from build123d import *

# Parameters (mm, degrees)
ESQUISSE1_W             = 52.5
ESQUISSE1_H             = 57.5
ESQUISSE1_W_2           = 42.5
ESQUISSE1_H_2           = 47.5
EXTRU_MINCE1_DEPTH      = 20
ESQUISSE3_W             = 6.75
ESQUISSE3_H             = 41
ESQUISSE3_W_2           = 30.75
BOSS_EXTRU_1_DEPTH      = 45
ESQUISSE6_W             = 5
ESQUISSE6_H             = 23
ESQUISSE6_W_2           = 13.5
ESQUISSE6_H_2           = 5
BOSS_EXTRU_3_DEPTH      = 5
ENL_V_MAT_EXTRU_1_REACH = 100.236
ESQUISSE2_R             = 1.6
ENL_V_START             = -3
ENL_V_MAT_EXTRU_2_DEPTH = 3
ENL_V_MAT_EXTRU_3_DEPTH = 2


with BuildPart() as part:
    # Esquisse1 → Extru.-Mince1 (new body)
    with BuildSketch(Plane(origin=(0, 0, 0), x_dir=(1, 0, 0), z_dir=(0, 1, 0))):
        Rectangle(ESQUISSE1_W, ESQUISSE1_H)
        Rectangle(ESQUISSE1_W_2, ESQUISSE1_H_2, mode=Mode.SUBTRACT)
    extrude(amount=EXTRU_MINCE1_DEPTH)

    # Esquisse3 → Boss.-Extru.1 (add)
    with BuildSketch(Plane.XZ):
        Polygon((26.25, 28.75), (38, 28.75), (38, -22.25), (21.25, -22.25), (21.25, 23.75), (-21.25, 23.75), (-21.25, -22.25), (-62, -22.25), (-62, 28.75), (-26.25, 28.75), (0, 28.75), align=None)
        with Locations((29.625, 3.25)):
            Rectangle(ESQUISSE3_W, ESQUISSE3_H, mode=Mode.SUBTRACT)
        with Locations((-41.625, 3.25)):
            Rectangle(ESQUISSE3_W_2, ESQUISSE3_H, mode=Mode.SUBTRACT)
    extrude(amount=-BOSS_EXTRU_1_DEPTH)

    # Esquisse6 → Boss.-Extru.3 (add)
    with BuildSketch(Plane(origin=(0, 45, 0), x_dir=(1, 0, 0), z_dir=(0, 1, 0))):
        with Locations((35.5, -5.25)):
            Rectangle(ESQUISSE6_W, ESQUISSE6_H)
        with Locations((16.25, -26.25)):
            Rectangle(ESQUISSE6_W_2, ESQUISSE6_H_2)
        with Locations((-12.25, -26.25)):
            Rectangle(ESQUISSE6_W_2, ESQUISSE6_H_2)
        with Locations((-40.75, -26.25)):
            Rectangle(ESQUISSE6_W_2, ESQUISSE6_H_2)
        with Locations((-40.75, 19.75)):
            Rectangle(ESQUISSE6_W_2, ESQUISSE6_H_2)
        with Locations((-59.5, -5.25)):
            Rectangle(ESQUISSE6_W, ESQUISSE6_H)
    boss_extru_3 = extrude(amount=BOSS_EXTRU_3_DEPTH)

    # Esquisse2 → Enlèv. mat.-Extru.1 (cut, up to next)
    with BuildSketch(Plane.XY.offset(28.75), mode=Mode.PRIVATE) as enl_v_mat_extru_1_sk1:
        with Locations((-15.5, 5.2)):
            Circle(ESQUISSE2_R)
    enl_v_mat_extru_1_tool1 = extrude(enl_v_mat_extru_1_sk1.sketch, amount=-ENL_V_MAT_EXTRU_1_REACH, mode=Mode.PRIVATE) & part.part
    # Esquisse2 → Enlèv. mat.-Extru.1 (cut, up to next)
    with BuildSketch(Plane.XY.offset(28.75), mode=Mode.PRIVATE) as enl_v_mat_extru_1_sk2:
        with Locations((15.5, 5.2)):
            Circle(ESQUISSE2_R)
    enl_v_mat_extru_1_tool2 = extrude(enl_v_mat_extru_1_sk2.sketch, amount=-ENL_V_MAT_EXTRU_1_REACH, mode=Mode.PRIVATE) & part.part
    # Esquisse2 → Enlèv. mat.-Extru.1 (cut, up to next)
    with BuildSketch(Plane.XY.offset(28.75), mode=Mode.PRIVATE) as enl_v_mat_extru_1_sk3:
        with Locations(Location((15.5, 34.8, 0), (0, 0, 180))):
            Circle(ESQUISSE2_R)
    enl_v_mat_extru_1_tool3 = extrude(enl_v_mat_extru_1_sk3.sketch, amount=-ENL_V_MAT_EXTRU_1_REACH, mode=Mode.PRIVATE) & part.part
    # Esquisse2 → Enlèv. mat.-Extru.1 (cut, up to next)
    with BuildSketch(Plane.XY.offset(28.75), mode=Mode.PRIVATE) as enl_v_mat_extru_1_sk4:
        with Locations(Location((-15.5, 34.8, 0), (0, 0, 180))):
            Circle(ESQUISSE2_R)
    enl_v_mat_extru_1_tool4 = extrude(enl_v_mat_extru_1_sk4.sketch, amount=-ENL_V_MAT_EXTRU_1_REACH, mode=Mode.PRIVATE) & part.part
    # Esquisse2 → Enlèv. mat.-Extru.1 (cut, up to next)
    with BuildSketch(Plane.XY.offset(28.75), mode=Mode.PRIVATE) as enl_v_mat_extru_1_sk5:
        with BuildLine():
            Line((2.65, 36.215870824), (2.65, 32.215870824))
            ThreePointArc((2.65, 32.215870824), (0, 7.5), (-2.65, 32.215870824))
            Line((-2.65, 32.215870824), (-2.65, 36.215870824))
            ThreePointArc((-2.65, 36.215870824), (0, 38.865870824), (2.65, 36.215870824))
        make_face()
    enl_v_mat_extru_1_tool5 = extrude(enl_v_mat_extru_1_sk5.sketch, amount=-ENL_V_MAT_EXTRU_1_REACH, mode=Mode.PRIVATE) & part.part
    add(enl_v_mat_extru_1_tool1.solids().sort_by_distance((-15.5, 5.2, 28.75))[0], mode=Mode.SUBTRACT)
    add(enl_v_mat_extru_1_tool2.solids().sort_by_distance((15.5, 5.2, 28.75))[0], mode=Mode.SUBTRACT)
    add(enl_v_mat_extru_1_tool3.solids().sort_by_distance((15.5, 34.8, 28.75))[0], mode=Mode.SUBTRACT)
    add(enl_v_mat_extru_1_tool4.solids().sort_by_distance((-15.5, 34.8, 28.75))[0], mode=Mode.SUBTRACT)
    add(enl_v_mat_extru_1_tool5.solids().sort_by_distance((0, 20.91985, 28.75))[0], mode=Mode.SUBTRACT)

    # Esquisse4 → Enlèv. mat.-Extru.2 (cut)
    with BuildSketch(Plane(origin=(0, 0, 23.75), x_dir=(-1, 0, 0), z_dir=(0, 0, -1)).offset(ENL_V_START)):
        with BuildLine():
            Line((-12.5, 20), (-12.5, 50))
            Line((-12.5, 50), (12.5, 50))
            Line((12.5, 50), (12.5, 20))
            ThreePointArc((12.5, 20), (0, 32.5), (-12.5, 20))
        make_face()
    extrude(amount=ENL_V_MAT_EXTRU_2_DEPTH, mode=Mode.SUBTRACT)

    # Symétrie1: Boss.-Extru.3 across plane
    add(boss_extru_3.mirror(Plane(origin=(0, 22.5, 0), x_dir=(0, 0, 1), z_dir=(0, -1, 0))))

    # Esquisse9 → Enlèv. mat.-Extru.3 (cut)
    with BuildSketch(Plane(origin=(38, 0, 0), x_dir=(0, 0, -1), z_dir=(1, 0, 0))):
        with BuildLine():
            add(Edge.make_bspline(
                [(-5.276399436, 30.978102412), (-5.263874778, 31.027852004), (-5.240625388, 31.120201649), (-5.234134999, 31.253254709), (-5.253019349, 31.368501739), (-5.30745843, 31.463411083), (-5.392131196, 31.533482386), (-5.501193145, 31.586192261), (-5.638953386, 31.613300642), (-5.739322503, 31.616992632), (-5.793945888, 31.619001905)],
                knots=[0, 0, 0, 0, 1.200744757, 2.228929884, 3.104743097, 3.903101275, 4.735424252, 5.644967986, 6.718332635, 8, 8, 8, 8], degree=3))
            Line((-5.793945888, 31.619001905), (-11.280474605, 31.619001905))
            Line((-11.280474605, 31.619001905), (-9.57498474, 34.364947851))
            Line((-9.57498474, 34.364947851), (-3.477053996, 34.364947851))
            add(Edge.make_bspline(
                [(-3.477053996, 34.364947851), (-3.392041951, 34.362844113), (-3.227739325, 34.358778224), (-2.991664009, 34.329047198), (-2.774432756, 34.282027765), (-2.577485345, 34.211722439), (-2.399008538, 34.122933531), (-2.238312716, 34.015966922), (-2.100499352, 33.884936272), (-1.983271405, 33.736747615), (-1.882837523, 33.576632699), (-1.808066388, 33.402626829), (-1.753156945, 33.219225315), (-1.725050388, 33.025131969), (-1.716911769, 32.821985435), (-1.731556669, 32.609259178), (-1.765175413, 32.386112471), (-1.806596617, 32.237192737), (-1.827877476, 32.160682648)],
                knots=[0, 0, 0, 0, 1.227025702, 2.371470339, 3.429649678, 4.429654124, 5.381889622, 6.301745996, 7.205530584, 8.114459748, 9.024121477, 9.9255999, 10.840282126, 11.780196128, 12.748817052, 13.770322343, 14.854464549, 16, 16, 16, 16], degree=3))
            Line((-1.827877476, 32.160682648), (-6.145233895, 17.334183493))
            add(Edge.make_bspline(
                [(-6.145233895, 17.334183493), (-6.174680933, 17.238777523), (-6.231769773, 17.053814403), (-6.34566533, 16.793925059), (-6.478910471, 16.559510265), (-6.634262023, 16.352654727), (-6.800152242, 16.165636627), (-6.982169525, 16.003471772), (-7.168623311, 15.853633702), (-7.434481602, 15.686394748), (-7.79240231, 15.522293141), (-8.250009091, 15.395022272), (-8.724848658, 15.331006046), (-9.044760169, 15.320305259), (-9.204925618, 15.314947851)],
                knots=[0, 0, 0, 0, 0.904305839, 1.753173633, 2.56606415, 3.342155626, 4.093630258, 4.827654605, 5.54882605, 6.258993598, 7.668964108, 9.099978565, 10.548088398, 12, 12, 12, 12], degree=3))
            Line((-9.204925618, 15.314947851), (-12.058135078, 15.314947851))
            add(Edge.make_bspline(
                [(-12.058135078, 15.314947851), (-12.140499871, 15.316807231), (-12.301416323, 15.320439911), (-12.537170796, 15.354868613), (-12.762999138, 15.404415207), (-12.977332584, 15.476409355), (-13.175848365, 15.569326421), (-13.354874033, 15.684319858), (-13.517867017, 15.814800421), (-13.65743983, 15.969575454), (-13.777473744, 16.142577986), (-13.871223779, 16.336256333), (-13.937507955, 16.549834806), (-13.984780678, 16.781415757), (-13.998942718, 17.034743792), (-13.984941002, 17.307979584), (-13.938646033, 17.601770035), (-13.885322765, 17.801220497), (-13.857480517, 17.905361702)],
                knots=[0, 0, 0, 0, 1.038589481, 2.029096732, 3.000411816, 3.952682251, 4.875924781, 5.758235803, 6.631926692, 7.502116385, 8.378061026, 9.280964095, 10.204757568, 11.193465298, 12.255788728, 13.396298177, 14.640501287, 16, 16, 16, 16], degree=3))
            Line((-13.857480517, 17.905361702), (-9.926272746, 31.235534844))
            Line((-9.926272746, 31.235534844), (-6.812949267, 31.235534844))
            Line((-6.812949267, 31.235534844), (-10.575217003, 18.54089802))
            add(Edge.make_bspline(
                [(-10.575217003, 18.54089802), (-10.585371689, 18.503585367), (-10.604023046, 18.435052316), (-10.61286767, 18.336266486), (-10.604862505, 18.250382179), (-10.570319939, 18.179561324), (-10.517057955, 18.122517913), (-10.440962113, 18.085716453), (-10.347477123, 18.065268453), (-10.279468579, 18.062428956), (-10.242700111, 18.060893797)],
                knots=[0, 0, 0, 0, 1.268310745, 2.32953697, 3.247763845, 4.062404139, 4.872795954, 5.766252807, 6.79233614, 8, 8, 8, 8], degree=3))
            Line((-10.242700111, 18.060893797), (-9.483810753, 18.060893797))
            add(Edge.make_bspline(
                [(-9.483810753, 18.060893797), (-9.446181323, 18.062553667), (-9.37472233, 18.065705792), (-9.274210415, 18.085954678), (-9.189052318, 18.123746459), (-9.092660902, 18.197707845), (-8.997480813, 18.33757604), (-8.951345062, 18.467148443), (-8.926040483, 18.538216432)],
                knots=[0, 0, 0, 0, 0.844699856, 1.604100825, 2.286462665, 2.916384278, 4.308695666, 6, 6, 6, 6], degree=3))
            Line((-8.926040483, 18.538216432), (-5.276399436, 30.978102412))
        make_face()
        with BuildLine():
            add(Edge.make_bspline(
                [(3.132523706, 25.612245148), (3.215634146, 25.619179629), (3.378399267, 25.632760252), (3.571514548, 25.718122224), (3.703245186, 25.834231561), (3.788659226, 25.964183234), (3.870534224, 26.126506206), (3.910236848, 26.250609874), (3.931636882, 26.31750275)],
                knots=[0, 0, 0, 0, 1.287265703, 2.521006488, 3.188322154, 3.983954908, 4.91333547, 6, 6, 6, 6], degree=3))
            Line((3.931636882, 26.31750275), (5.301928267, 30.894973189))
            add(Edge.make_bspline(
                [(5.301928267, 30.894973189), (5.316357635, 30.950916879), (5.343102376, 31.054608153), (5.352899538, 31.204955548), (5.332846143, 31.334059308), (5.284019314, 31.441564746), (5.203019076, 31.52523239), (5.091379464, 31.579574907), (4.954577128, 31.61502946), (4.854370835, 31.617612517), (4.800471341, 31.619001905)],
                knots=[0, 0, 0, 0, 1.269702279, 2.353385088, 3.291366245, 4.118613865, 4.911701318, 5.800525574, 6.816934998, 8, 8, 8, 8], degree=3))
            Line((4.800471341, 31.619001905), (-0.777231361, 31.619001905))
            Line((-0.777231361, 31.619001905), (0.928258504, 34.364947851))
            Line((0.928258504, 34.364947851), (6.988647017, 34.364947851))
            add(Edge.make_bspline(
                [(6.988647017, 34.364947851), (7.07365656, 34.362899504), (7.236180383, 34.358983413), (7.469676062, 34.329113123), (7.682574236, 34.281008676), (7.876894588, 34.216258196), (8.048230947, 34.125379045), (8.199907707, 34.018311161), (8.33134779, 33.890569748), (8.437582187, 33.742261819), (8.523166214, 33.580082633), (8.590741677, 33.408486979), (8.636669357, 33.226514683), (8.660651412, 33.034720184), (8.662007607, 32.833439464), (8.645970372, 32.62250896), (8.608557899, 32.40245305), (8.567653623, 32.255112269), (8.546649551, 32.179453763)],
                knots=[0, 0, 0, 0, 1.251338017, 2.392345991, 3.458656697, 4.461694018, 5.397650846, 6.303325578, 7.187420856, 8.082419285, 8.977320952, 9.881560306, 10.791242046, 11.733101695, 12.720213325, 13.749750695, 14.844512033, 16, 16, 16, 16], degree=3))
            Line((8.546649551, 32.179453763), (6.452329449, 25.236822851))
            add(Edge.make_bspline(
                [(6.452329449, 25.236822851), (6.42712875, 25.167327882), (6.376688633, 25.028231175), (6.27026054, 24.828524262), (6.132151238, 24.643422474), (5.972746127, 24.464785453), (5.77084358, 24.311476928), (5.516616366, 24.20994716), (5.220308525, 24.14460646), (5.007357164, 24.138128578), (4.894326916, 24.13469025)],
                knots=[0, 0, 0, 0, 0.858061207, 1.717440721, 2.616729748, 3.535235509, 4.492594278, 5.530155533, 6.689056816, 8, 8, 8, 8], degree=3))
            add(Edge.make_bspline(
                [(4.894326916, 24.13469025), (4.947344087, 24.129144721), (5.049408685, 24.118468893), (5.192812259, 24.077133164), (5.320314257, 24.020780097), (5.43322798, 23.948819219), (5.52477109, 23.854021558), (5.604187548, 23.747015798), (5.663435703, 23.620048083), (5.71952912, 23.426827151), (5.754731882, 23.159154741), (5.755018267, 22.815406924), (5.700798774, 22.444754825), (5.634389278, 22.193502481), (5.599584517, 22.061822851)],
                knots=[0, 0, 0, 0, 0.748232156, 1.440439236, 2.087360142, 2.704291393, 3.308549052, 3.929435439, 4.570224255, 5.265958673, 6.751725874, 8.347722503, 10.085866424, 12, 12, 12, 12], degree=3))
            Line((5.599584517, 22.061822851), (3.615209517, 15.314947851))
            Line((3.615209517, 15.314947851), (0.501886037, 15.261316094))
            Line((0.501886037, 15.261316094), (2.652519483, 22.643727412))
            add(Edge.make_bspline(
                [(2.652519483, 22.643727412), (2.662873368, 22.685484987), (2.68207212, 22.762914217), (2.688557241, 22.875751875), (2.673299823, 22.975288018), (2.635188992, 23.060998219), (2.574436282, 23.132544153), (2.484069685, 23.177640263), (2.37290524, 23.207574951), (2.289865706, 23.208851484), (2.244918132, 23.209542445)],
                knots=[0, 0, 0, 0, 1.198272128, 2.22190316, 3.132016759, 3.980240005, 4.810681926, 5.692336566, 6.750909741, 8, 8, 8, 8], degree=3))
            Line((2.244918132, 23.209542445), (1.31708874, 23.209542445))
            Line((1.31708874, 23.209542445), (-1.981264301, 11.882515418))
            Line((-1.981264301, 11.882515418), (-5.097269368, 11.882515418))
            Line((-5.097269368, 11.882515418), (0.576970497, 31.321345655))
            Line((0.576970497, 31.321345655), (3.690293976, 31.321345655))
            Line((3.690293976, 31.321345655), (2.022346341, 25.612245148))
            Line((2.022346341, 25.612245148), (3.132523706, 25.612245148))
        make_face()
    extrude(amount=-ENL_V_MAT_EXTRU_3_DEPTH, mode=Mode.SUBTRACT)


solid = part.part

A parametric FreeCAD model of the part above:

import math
import FreeCAD as App
import Part
import Sketcher
from FreeCAD import Vector
Q = App.Units.Quantity

doc = App.newDocument("Part")
params = doc.addObject("Spreadsheet::Sheet", "Params")
for row, (alias, value) in enumerate([
    ("sketch1_width", "52.5 mm"),
    ("sketch1_width2", "42.5 mm"),
    ("sketch1_height", "57.5 mm"),
    ("sketch1_height2", "47.5 mm"),
    ("pad1_length", "20 mm"),
    ("sketch2_width", "100 mm"),
    ("sketch2_height", "51 mm"),
    ("sketch2_height2", "46 mm"),
    ("sketch2_height3", "41 mm"),
    ("sketch2_width2", "42.5 mm"),
    ("pad2_length", "45 mm"),
    ("sketch3_width", "5 mm"),
    ("sketch3_height", "23 mm"),
    ("sketch3_width2", "13.5 mm"),
    ("pad3_length", "5 mm"),
    ("sketch4_diameter", "3.2 mm"),
    ("sketch5_diameter", "3.2 mm"),
    ("sketch6_diameter", "3.2 mm"),
    ("sketch7_diameter", "3.2 mm"),
    ("sketch8_radius", "12.5 mm"),
    ("sketch8_height", "4 mm"),
    ("sketch8_radius2", "2.65 mm"),
    ("sketch9_radius", "12.5 mm"),
    ("sketch9_height", "30 mm"),
    ("pocket6_length", "3 mm"),
    ("pocket7_length", "2 mm"),
], start=1):
    params.set(f"A{row}", alias)
    params.set(f"B{row}", "=" + value)
    params.setAlias(f"B{row}", alias)

body = doc.addObject("PartDesign::Body", "Body")

sketch1 = doc.addObject("Sketcher::SketchObject", "Sketch")
body.addObject(sketch1)
sketch1.AttachmentSupport = (doc.XZ_Plane, [""])
sketch1.MapMode = "FlatFace"
sketch1.addGeometry([
    Part.LineSegment(Vector(-26, -29, 0), Vector(-26, 29, 0)),
    Part.LineSegment(Vector(-26, 29, 0), Vector(26, 29, 0)),
    Part.LineSegment(Vector(26, 29, 0), Vector(26, -29, 0)),
    Part.LineSegment(Vector(26, -29, 0), Vector(-26, -29, 0)),
    Part.LineSegment(Vector(21, 24, 0), Vector(-21, 24, 0)),
    Part.LineSegment(Vector(-21, 24, 0), Vector(-21, -24, 0)),
    Part.LineSegment(Vector(-21, -24, 0), Vector(21, -24, 0)),
    Part.LineSegment(Vector(21, -24, 0), Vector(21, 24, 0)),
], False)
sketch1.addConstraint([
    Sketcher.Constraint("Coincident", 0, 2, 1, 1),
    Sketcher.Constraint("Coincident", 1, 2, 2, 1),
    Sketcher.Constraint("Coincident", 2, 2, 3, 1),
    Sketcher.Constraint("Coincident", 3, 2, 0, 1),
    Sketcher.Constraint("Coincident", 4, 2, 5, 1),
    Sketcher.Constraint("Coincident", 5, 2, 6, 1),
    Sketcher.Constraint("Coincident", 6, 2, 7, 1),
    Sketcher.Constraint("Coincident", 7, 2, 4, 1),
    Sketcher.Constraint("Vertical", 0),
    Sketcher.Constraint("Horizontal", 1),
    Sketcher.Constraint("Vertical", 2),
    Sketcher.Constraint("Horizontal", 3),
    Sketcher.Constraint("Horizontal", 4),
    Sketcher.Constraint("Vertical", 5),
    Sketcher.Constraint("Horizontal", 6),
    Sketcher.Constraint("Vertical", 7),
    Sketcher.Constraint("Symmetric", 0, 2, 2, 2, -1, 1),
    Sketcher.Constraint("Symmetric", 4, 2, 6, 2, -1, 1),
    Sketcher.Constraint("DistanceX", 1, 1, 1, 2, Q("52.5 mm")),
    Sketcher.Constraint("DistanceX", 4, 2, 4, 1, Q("42.5 mm")),
    Sketcher.Constraint("DistanceY", 0, 1, 0, 2, Q("57.5 mm")),
    Sketcher.Constraint("DistanceY", 5, 2, 5, 1, Q("47.5 mm")),
])
sketch1.setExpression("Constraints[18]", "Params.sketch1_width")
sketch1.setExpression("Constraints[19]", "Params.sketch1_width2")
sketch1.setExpression("Constraints[20]", "Params.sketch1_height")
sketch1.setExpression("Constraints[21]", "Params.sketch1_height2")
pad1 = doc.addObject("PartDesign::Pad", "Pad")
body.addObject(pad1)
pad1.Profile = sketch1
pad1.setExpression("Length", "Params.pad1_length")
pad1.Reversed = True

sketch2 = doc.addObject("Sketcher::SketchObject", "Sketch001")
body.addObject(sketch2)
sketch2.AttachmentSupport = (doc.XZ_Plane, [""])
sketch2.MapMode = "FlatFace"
sketch2.addGeometry([
    Part.LineSegment(Vector(38, 29, 0), Vector(-62, 29, 0)),
    Part.LineSegment(Vector(-62, 29, 0), Vector(-62, -22, 0)),
    Part.LineSegment(Vector(-62, -22, 0), Vector(-21, -22, 0)),
    Part.LineSegment(Vector(-21, -22, 0), Vector(-21, 24, 0)),
    Part.LineSegment(Vector(-21, 24, 0), Vector(21, 24, 0)),
    Part.LineSegment(Vector(21, 24, 0), Vector(21, -22, 0)),
    Part.LineSegment(Vector(21, -22, 0), Vector(38, -22, 0)),
    Part.LineSegment(Vector(38, -22, 0), Vector(38, 29, 0)),
    Part.LineSegment(Vector(26, -17, 0), Vector(26, 24, 0)),
    Part.LineSegment(Vector(26, 24, 0), Vector(33, 24, 0)),
    Part.LineSegment(Vector(33, 24, 0), Vector(33, -17, 0)),
    Part.LineSegment(Vector(33, -17, 0), Vector(26, -17, 0)),
    Part.LineSegment(Vector(-57, -17, 0), Vector(-57, 24, 0)),
    Part.LineSegment(Vector(-57, 24, 0), Vector(-26, 24, 0)),
    Part.LineSegment(Vector(-26, 24, 0), Vector(-26, -17, 0)),
    Part.LineSegment(Vector(-26, -17, 0), Vector(-57, -17, 0)),
], False)
sketch2.addConstraint([
    Sketcher.Constraint("Coincident", 0, 2, 1, 1),
    Sketcher.Constraint("Coincident", 1, 2, 2, 1),
    Sketcher.Constraint("Coincident", 2, 2, 3, 1),
    Sketcher.Constraint("Coincident", 3, 2, 4, 1),
    Sketcher.Constraint("Coincident", 4, 2, 5, 1),
    Sketcher.Constraint("Coincident", 5, 2, 6, 1),
    Sketcher.Constraint("Coincident", 6, 2, 7, 1),
    Sketcher.Constraint("Coincident", 7, 2, 0, 1),
    Sketcher.Constraint("Coincident", 8, 2, 9, 1),
    Sketcher.Constraint("Coincident", 9, 2, 10, 1),
    Sketcher.Constraint("Coincident", 10, 2, 11, 1),
    Sketcher.Constraint("Coincident", 11, 2, 8, 1),
    Sketcher.Constraint("Coincident", 12, 2, 13, 1),
    Sketcher.Constraint("Coincident", 13, 2, 14, 1),
    Sketcher.Constraint("Coincident", 14, 2, 15, 1),
    Sketcher.Constraint("Coincident", 15, 2, 12, 1),
    Sketcher.Constraint("Horizontal", 0),
    Sketcher.Constraint("Vertical", 1),
    Sketcher.Constraint("Horizontal", 2),
    Sketcher.Constraint("Vertical", 3),
    Sketcher.Constraint("Horizontal", 4),
    Sketcher.Constraint("Vertical", 5),
    Sketcher.Constraint("Horizontal", 6),
    Sketcher.Constraint("Vertical", 7),
    Sketcher.Constraint("Vertical", 8),
    Sketcher.Constraint("Horizontal", 9),
    Sketcher.Constraint("Vertical", 10),
    Sketcher.Constraint("Horizontal", 11),
    Sketcher.Constraint("Vertical", 12),
    Sketcher.Constraint("Horizontal", 13),
    Sketcher.Constraint("Vertical", 14),
    Sketcher.Constraint("Horizontal", 15),
    Sketcher.Constraint("Symmetric", 2, 2, 5, 2, -2),
    Sketcher.Constraint("Symmetric", 8, 2, 13, 2, -2),
    Sketcher.Constraint("Horizontal", 4, 2, 8, 2),
    Sketcher.Constraint("Horizontal", 11, 2, 14, 2),
    Sketcher.Constraint("DistanceX", 0, 2, 0, 1, Q("100 mm")),
    Sketcher.Constraint("DistanceY", 1, 2, 1, 1, Q("51 mm")),
    Sketcher.Constraint("DistanceY", 3, 1, 3, 2, Q("46 mm")),
    Sketcher.Constraint("DistanceY", 8, 1, 8, 2, Q("41 mm")),
    Sketcher.Constraint("DistanceX", 4, 1, 4, 2, Q("42.5 mm")),
    Sketcher.Constraint("DistanceX", 0, 2, -1, 1, Q("62 mm")),
    Sketcher.Constraint("DistanceX", -1, 1, 9, 2, Q("33 mm")),
    Sketcher.Constraint("DistanceX", 12, 2, -1, 1, Q("57 mm")),
    Sketcher.Constraint("DistanceX", 4, 2, 8, 2, Q("5 mm")),
    Sketcher.Constraint("DistanceY", -1, 1, 0, 2, Q("28.75 mm")),
])
sketch2.setExpression("Constraints[36]", "Params.sketch2_width")
sketch2.setExpression("Constraints[37]", "Params.sketch2_height")
sketch2.setExpression("Constraints[38]", "Params.sketch2_height2")
sketch2.setExpression("Constraints[39]", "Params.sketch2_height3")
sketch2.setExpression("Constraints[40]", "Params.sketch2_width2")
pad2 = doc.addObject("PartDesign::Pad", "Pad001")
body.addObject(pad2)
pad2.Profile = sketch2
pad2.setExpression("Length", "Params.pad2_length")
pad2.Reversed = True

sketch3 = doc.addObject("Sketcher::SketchObject", "Sketch002")
body.addObject(sketch3)
sketch3.AttachmentSupport = (doc.XZ_Plane, [""])
sketch3.MapMode = "FlatFace"
sketch3.AttachmentOffset = App.Placement(Vector(0, 0, -45), App.Rotation())
sketch3.addGeometry([
    Part.LineSegment(Vector(33, -6, 0), Vector(33, 17, 0)),
    Part.LineSegment(Vector(33, 17, 0), Vector(38, 17, 0)),
    Part.LineSegment(Vector(38, 17, 0), Vector(38, -6, 0)),
    Part.LineSegment(Vector(38, -6, 0), Vector(33, -6, 0)),
    Part.LineSegment(Vector(10, 24, 0), Vector(10, 29, 0)),
    Part.LineSegment(Vector(10, 29, 0), Vector(23, 29, 0)),
    Part.LineSegment(Vector(23, 29, 0), Vector(23, 24, 0)),
    Part.LineSegment(Vector(23, 24, 0), Vector(10, 24, 0)),
    Part.LineSegment(Vector(-19, 24, 0), Vector(-19, 29, 0)),
    Part.LineSegment(Vector(-19, 29, 0), Vector(-6, 29, 0)),
    Part.LineSegment(Vector(-6, 29, 0), Vector(-6, 24, 0)),
    Part.LineSegment(Vector(-6, 24, 0), Vector(-19, 24, 0)),
    Part.LineSegment(Vector(-48, 24, 0), Vector(-48, 29, 0)),
    Part.LineSegment(Vector(-48, 29, 0), Vector(-34, 29, 0)),
    Part.LineSegment(Vector(-34, 29, 0), Vector(-34, 24, 0)),
    Part.LineSegment(Vector(-34, 24, 0), Vector(-48, 24, 0)),
    Part.LineSegment(Vector(-48, -22, 0), Vector(-48, -17, 0)),
    Part.LineSegment(Vector(-48, -17, 0), Vector(-34, -17, 0)),
    Part.LineSegment(Vector(-34, -17, 0), Vector(-34, -22, 0)),
    Part.LineSegment(Vector(-34, -22, 0), Vector(-48, -22, 0)),
    Part.LineSegment(Vector(-62, -6, 0), Vector(-62, 17, 0)),
    Part.LineSegment(Vector(-62, 17, 0), Vector(-57, 17, 0)),
    Part.LineSegment(Vector(-57, 17, 0), Vector(-57, -6, 0)),
    Part.LineSegment(Vector(-57, -6, 0), Vector(-62, -6, 0)),
], False)
sketch3.addConstraint([
    Sketcher.Constraint("Coincident", 0, 2, 1, 1),
    Sketcher.Constraint("Coincident", 1, 2, 2, 1),
    Sketcher.Constraint("Coincident", 2, 2, 3, 1),
    Sketcher.Constraint("Coincident", 3, 2, 0, 1),
    Sketcher.Constraint("Coincident", 4, 2, 5, 1),
    Sketcher.Constraint("Coincident", 5, 2, 6, 1),
    Sketcher.Constraint("Coincident", 6, 2, 7, 1),
    Sketcher.Constraint("Coincident", 7, 2, 4, 1),
    Sketcher.Constraint("Coincident", 8, 2, 9, 1),
    Sketcher.Constraint("Coincident", 9, 2, 10, 1),
    Sketcher.Constraint("Coincident", 10, 2, 11, 1),
    Sketcher.Constraint("Coincident", 11, 2, 8, 1),
    Sketcher.Constraint("Coincident", 12, 2, 13, 1),
    Sketcher.Constraint("Coincident", 13, 2, 14, 1),
    Sketcher.Constraint("Coincident", 14, 2, 15, 1),
    Sketcher.Constraint("Coincident", 15, 2, 12, 1),
    Sketcher.Constraint("Coincident", 16, 2, 17, 1),
    Sketcher.Constraint("Coincident", 17, 2, 18, 1),
    Sketcher.Constraint("Coincident", 18, 2, 19, 1),
    Sketcher.Constraint("Coincident", 19, 2, 16, 1),
    Sketcher.Constraint("Coincident", 20, 2, 21, 1),
    Sketcher.Constraint("Coincident", 21, 2, 22, 1),
    Sketcher.Constraint("Coincident", 22, 2, 23, 1),
    Sketcher.Constraint("Coincident", 23, 2, 20, 1),
    Sketcher.Constraint("Vertical", 0),
    Sketcher.Constraint("Horizontal", 1),
    Sketcher.Constraint("Vertical", 2),
    Sketcher.Constraint("Horizontal", 3),
    Sketcher.Constraint("Vertical", 4),
    Sketcher.Constraint("Horizontal", 5),
    Sketcher.Constraint("Vertical", 6),
    Sketcher.Constraint("Horizontal", 7),
    Sketcher.Constraint("Vertical", 8),
    Sketcher.Constraint("Horizontal", 9),
    Sketcher.Constraint("Vertical", 10),
    Sketcher.Constraint("Horizontal", 11),
    Sketcher.Constraint("Vertical", 12),
    Sketcher.Constraint("Horizontal", 13),
    Sketcher.Constraint("Vertical", 14),
    Sketcher.Constraint("Horizontal", 15),
    Sketcher.Constraint("Vertical", 16),
    Sketcher.Constraint("Horizontal", 17),
    Sketcher.Constraint("Vertical", 18),
    Sketcher.Constraint("Horizontal", 19),
    Sketcher.Constraint("Vertical", 20),
    Sketcher.Constraint("Horizontal", 21),
    Sketcher.Constraint("Vertical", 22),
    Sketcher.Constraint("Horizontal", 23),
    Sketcher.Constraint("Horizontal", 5, 2, 8, 2),
    Sketcher.Constraint("Horizontal", 7, 2, 10, 2),
    Sketcher.Constraint("Horizontal", 9, 2, 12, 2),
    Sketcher.Constraint("Horizontal", 11, 2, 14, 2),
    Sketcher.Constraint("Horizontal", 1, 2, 20, 2),
    Sketcher.Constraint("Horizontal", 3, 2, 22, 2),
    Sketcher.Constraint("Vertical", 15, 2, 16, 2),
    Sketcher.Constraint("Vertical", 14, 2, 17, 2),
    Sketcher.Constraint("Equal", 7, 9),
    Sketcher.Constraint("Equal", 11, 13),
    Sketcher.Constraint("Equal", 3, 21),
    Sketcher.Constraint("Equal", 23, 4),
    Sketcher.Constraint("Equal", 14, 16),
    Sketcher.Constraint("DistanceX", 1, 1, 1, 2, Q("5 mm")),
    Sketcher.Constraint("DistanceY", 0, 1, 0, 2, Q("23 mm")),
    Sketcher.Constraint("DistanceX", 5, 1, 5, 2, Q("13.5 mm")),
    Sketcher.Constraint("DistanceX", -1, 1, 0, 2, Q("33 mm")),
    Sketcher.Constraint("DistanceX", -1, 1, 5, 2, Q("23 mm")),
    Sketcher.Constraint("DistanceX", 8, 2, -1, 1, Q("19 mm")),
    Sketcher.Constraint("DistanceX", 13, 2, -1, 1, Q("34 mm")),
    Sketcher.Constraint("DistanceX", 20, 2, -1, 1, Q("62 mm")),
    Sketcher.Constraint("DistanceY", 0, 2, 4, 2, Q("12 mm")),
    Sketcher.Constraint("DistanceY", 16, 2, 15, 2, Q("41 mm")),
    Sketcher.Constraint("DistanceY", -1, 1, 0, 2, Q("16.75 mm")),
])
sketch3.setExpression("Constraints[61]", "Params.sketch3_width")
sketch3.setExpression("Constraints[62]", "Params.sketch3_height")
sketch3.setExpression("Constraints[63]", "Params.sketch3_width2")
pad3 = doc.addObject("PartDesign::Pad", "Pad002")
body.addObject(pad3)
pad3.Profile = sketch3
pad3.setExpression("Length", "Params.pad3_length")
pad3.Reversed = True

sketch4 = doc.addObject("Sketcher::SketchObject", "Sketch003")
body.addObject(sketch4)
sketch4.AttachmentSupport = (doc.XY_Plane, [""])
sketch4.MapMode = "FlatFace"
sketch4.AttachmentOffset = App.Placement(Vector(0, 0, 28.75), App.Rotation())
sketch4.addGeometry(Part.Circle(Vector(-15.5, 5.2, 0), Vector(0, 0, 1), 1.6), False)
sketch4.addConstraint([
    Sketcher.Constraint("Diameter", 0, Q("3.2 mm")),
    Sketcher.Constraint("DistanceX", 0, 3, -1, 1, Q("15.5 mm")),
    Sketcher.Constraint("DistanceY", -1, 1, 0, 3, Q("5.2 mm")),
])
sketch4.setExpression("Constraints[0]", "Params.sketch4_diameter")
pocket1 = doc.addObject("PartDesign::Pocket", "Pocket")
body.addObject(pocket1)
pocket1.Profile = sketch4
pocket1.Type = "UpToFirst"

sketch5 = doc.addObject("Sketcher::SketchObject", "Sketch004")
body.addObject(sketch5)
sketch5.AttachmentSupport = (doc.XY_Plane, [""])
sketch5.MapMode = "FlatFace"
sketch5.AttachmentOffset = App.Placement(Vector(0, 0, 28.75), App.Rotation())
sketch5.addGeometry(Part.Circle(Vector(15.5, 5.2, 0), Vector(0, 0, 1), 1.6), False)
sketch5.addConstraint([
    Sketcher.Constraint("Diameter", 0, Q("3.2 mm")),
    Sketcher.Constraint("DistanceX", -1, 1, 0, 3, Q("15.5 mm")),
    Sketcher.Constraint("DistanceY", -1, 1, 0, 3, Q("5.2 mm")),
])
sketch5.setExpression("Constraints[0]", "Params.sketch5_diameter")
pocket2 = doc.addObject("PartDesign::Pocket", "Pocket001")
body.addObject(pocket2)
pocket2.Profile = sketch5
pocket2.Type = "UpToFirst"

sketch6 = doc.addObject("Sketcher::SketchObject", "Sketch005")
body.addObject(sketch6)
sketch6.AttachmentSupport = (doc.XY_Plane, [""])
sketch6.MapMode = "FlatFace"
sketch6.AttachmentOffset = App.Placement(Vector(0, 0, 28.75), App.Rotation())
sketch6.addGeometry(Part.Circle(Vector(15.5, 34.8, 0), Vector(0, 0, 1), 1.6), False)
sketch6.addConstraint([
    Sketcher.Constraint("Diameter", 0, Q("3.2 mm")),
    Sketcher.Constraint("DistanceX", -1, 1, 0, 3, Q("15.5 mm")),
    Sketcher.Constraint("DistanceY", -1, 1, 0, 3, Q("34.8 mm")),
])
sketch6.setExpression("Constraints[0]", "Params.sketch6_diameter")
pocket3 = doc.addObject("PartDesign::Pocket", "Pocket002")
body.addObject(pocket3)
pocket3.Profile = sketch6
pocket3.Type = "UpToFirst"

sketch7 = doc.addObject("Sketcher::SketchObject", "Sketch006")
body.addObject(sketch7)
sketch7.AttachmentSupport = (doc.XY_Plane, [""])
sketch7.MapMode = "FlatFace"
sketch7.AttachmentOffset = App.Placement(Vector(0, 0, 28.75), App.Rotation())
sketch7.addGeometry(Part.Circle(Vector(-15.5, 34.8, 0), Vector(0, 0, 1), 1.6), False)
sketch7.addConstraint([
    Sketcher.Constraint("Diameter", 0, Q("3.2 mm")),
    Sketcher.Constraint("DistanceX", 0, 3, -1, 1, Q("15.5 mm")),
    Sketcher.Constraint("DistanceY", -1, 1, 0, 3, Q("34.8 mm")),
])
sketch7.setExpression("Constraints[0]", "Params.sketch7_diameter")
pocket4 = doc.addObject("PartDesign::Pocket", "Pocket003")
body.addObject(pocket4)
pocket4.Profile = sketch7
pocket4.Type = "UpToFirst"

sketch8 = doc.addObject("Sketcher::SketchObject", "Sketch007")
body.addObject(sketch8)
sketch8.AttachmentSupport = (doc.XY_Plane, [""])
sketch8.MapMode = "FlatFace"
sketch8.AttachmentOffset = App.Placement(Vector(0, 0, 28.75), App.Rotation())
sketch8.addGeometry([
    Part.LineSegment(Vector(2.6, 32.2, 0), Vector(2.6, 36.2, 0)),
    Part.ArcOfCircle(Part.Circle(Vector(0, 36.2, 0), Vector(0, 0, 1), 2.6), math.radians(0), math.radians(180)),
    Part.LineSegment(Vector(-2.6, 36.2, 0), Vector(-2.6, 32.2, 0)),
    Part.ArcOfCircle(Part.Circle(Vector(0, 20, 0), Vector(0, 0, 1), 12.5), math.radians(102), math.radians(438)),
], False)
sketch8.addConstraint([
    Sketcher.Constraint("Tangent", 0, 2, 1, 1),
    Sketcher.Constraint("Tangent", 1, 2, 2, 1),
    Sketcher.Constraint("Coincident", 2, 2, 3, 1),
    Sketcher.Constraint("Coincident", 3, 2, 0, 1),
    Sketcher.Constraint("Vertical", 0),
    Sketcher.Constraint("Vertical", 2),
    Sketcher.Constraint("Symmetric", 2, 2, 3, 2, -2),
    Sketcher.Constraint("Radius", 3, Q("12.5 mm")),
    Sketcher.Constraint("DistanceY", 0, 1, 0, 2, Q("4 mm")),
    Sketcher.Constraint("Radius", 1, Q("2.65 mm")),
    Sketcher.Constraint("DistanceY", -1, 1, 3, 3, Q("20 mm")),
])
sketch8.setExpression("Constraints[7]", "Params.sketch8_radius")
sketch8.setExpression("Constraints[8]", "Params.sketch8_height")
sketch8.setExpression("Constraints[9]", "Params.sketch8_radius2")
pocket5 = doc.addObject("PartDesign::Pocket", "Pocket004")
body.addObject(pocket5)
pocket5.Profile = sketch8
pocket5.Type = "UpToFirst"

sketch9 = doc.addObject("Sketcher::SketchObject", "Sketch008")
body.addObject(sketch9)
sketch9.AttachmentSupport = (doc.XY_Plane, [""])
sketch9.MapMode = "FlatFace"
sketch9.AttachmentOffset = App.Placement(Vector(0, 0, 26.75), App.Rotation())
sketch9.addGeometry([
    Part.LineSegment(Vector(12, 50, 0), Vector(12, 20, 0)),
    Part.ArcOfCircle(Part.Circle(Vector(0, 20, 0), Vector(0, 0, 1), 12), math.radians(0), math.radians(180)),
    Part.LineSegment(Vector(-12, 20, 0), Vector(-12, 50, 0)),
    Part.LineSegment(Vector(-12, 50, 0), Vector(12, 50, 0)),
], False)
sketch9.addConstraint([
    Sketcher.Constraint("Tangent", 0, 2, 1, 1),
    Sketcher.Constraint("Tangent", 1, 2, 2, 1),
    Sketcher.Constraint("Coincident", 2, 2, 3, 1),
    Sketcher.Constraint("Coincident", 3, 2, 0, 1),
    Sketcher.Constraint("Vertical", 0),
    Sketcher.Constraint("Vertical", 2),
    Sketcher.Constraint("Horizontal", 3),
    Sketcher.Constraint("PointOnObject", 1, 3, -2),
    Sketcher.Constraint("Radius", 1, Q("12.5 mm")),
    Sketcher.Constraint("DistanceY", 0, 2, 0, 1, Q("30 mm")),
    Sketcher.Constraint("DistanceY", -1, 1, 1, 3, Q("20 mm")),
])
sketch9.setExpression("Constraints[8]", "Params.sketch9_radius")
sketch9.setExpression("Constraints[9]", "Params.sketch9_height")
pocket6 = doc.addObject("PartDesign::Pocket", "Pocket005")
body.addObject(pocket6)
pocket6.Profile = sketch9
pocket6.setExpression("Length", "Params.pocket6_length")
doc.recompute()

datumplane = doc.addObject("PartDesign::Plane", "DatumPlane")
body.addObject(datumplane)
datumplane.AttachmentSupport = (doc.XZ_Plane, [""])
datumplane.MapMode = "FlatFace"
datumplane.AttachmentOffset = App.Placement(Vector(0, 0, -22.5), App.Rotation())
mirrored = doc.addObject("PartDesign::Mirrored", "Mirrored")
body.addObject(mirrored)
mirrored.Originals = [pad3]
mirrored.MirrorPlane = (datumplane, [""])
body.Tip = mirrored

sketch10 = doc.addObject("Sketcher::SketchObject", "Sketch009")
body.addObject(sketch10)
sketch10.AttachmentSupport = (doc.YZ_Plane, [""])
sketch10.MapMode = "FlatFace"
sketch10.AttachmentOffset = App.Placement(Vector(0, 0, 38), App.Rotation())
sketch10.addGeometry([
    Part.BSplineCurve([Vector(30.978102, 5.276399, 0), Vector(31.027852, 5.263875, 0), Vector(31.120202, 5.240625, 0), Vector(31.253255, 5.234135, 0), Vector(31.368502, 5.253019, 0), Vector(31.463411, 5.307458, 0), Vector(31.533482, 5.392131, 0), Vector(31.586192, 5.501193, 0), Vector(31.613301, 5.638953, 0), Vector(31.616993, 5.739323, 0), Vector(31.619002, 5.793946, 0)], [4, 1, 1, 1, 1, 1, 1, 1, 4], [0, 1.200744757, 2.228929884, 3.104743097, 3.903101275, 4.735424252, 5.644967986, 6.718332635, 8], False, 3, [1, 1, 1, 1, 1, 1, 1, 1, 1, 1, 1], False),
    Part.LineSegment(Vector(30.978102, 5.276399, 0), Vector(18.538216, 8.92604, 0)),
    Part.BSplineCurve([Vector(18.060894, 9.483811, 0), Vector(18.062554, 9.446181, 0), Vector(18.065706, 9.374722, 0), Vector(18.085955, 9.27421, 0), Vector(18.123746, 9.189052, 0), Vector(18.197708, 9.092661, 0), Vector(18.337576, 8.997481, 0), Vector(18.467148, 8.951345, 0), Vector(18.538216, 8.92604, 0)], [4, 1, 1, 1, 1, 1, 4], [0, 0.844699856, 1.604100825, 2.286462665, 2.916384278, 4.308695666, 6], False, 3, [1, 1, 1, 1, 1, 1, 1, 1, 1], False),
    Part.LineSegment(Vector(18.060894, 9.483811, 0), Vector(18.060894, 10.2427, 0)),
    Part.BSplineCurve([Vector(18.540898, 10.575217, 0), Vector(18.503585, 10.585372, 0), Vector(18.435052, 10.604023, 0), Vector(18.336266, 10.612868, 0), Vector(18.250382, 10.604863, 0), Vector(18.179561, 10.57032, 0), Vector(18.122518, 10.517058, 0), Vector(18.085716, 10.440962, 0), Vector(18.065268, 10.347477, 0), Vector(18.062429, 10.279469, 0), Vector(18.060894, 10.2427, 0)], [4, 1, 1, 1, 1, 1, 1, 1, 4], [0, 1.268310745, 2.32953697, 3.247763845, 4.062404139, 4.872795954, 5.766252807, 6.79233614, 8], False, 3, [1, 1, 1, 1, 1, 1, 1, 1, 1, 1, 1], False),
    Part.LineSegment(Vector(18.540898, 10.575217, 0), Vector(31.235535, 6.812949, 0)),
    Part.LineSegment(Vector(31.235535, 6.812949, 0), Vector(31.235535, 9.926273, 0)),
    Part.LineSegment(Vector(31.235535, 9.926273, 0), Vector(17.905362, 13.857481, 0)),
    Part.BSplineCurve([Vector(15.314948, 12.058135, 0), Vector(15.316807, 12.1405, 0), Vector(15.32044, 12.301416, 0), Vector(15.354869, 12.537171, 0), Vector(15.404415, 12.762999, 0), Vector(15.476409, 12.977333, 0), Vector(15.569326, 13.175848, 0), Vector(15.68432, 13.354874, 0), Vector(15.8148, 13.517867, 0), Vector(15.969575, 13.65744, 0), Vector(16.142578, 13.777474, 0), Vector(16.336256, 13.871224, 0), Vector(16.549835, 13.937508, 0), Vector(16.781416, 13.984781, 0), Vector(17.034744, 13.998943, 0), Vector(17.30798, 13.984941, 0), Vector(17.60177, 13.938646, 0), Vector(17.80122, 13.885323, 0), Vector(17.905362, 13.857481, 0)], [4, 1, 1, 1, 1, 1, 1, 1, 1, 1, 1, 1, 1, 1, 1, 1, 4], [0, 1.038589481, 2.029096732, 3.000411816, 3.952682251, 4.875924781, 5.758235803, 6.631926692, 7.502116385, 8.378061026, 9.280964095, 10.204757568, 11.193465298, 12.255788728, 13.396298177, 14.640501287, 16], False, 3, [1, 1, 1, 1, 1, 1, 1, 1, 1, 1, 1, 1, 1, 1, 1, 1, 1, 1, 1], False),
    Part.LineSegment(Vector(15.314948, 12.058135, 0), Vector(15.314948, 9.204926, 0)),
    Part.BSplineCurve([Vector(17.334183, 6.145234, 0), Vector(17.238778, 6.174681, 0), Vector(17.053814, 6.23177, 0), Vector(16.793925, 6.345665, 0), Vector(16.55951, 6.47891, 0), Vector(16.352655, 6.634262, 0), Vector(16.165637, 6.800152, 0), Vector(16.003472, 6.98217, 0), Vector(15.853634, 7.168623, 0), Vector(15.686395, 7.434482, 0), Vector(15.522293, 7.792402, 0), Vector(15.395022, 8.250009, 0), Vector(15.331006, 8.724849, 0), Vector(15.320305, 9.04476, 0), Vector(15.314948, 9.204926, 0)], [4, 1, 1, 1, 1, 1, 1, 1, 1, 1, 1, 1, 4], [0, 0.904305839, 1.753173633, 2.56606415, 3.342155626, 4.093630258, 4.827654605, 5.54882605, 6.258993598, 7.668964108, 9.099978565, 10.548088398, 12], False, 3, [1, 1, 1, 1, 1, 1, 1, 1, 1, 1, 1, 1, 1, 1, 1], False),
    Part.LineSegment(Vector(17.334183, 6.145234, 0), Vector(32.160683, 1.827877, 0)),
    Part.BSplineCurve([Vector(34.364948, 3.477054, 0), Vector(34.362844, 3.392042, 0), Vector(34.358778, 3.227739, 0), Vector(34.329047, 2.991664, 0), Vector(34.282028, 2.774433, 0), Vector(34.211722, 2.577485, 0), Vector(34.122934, 2.399009, 0), Vector(34.015967, 2.238313, 0), Vector(33.884936, 2.100499, 0), Vector(33.736748, 1.983271, 0), Vector(33.576633, 1.882838, 0), Vector(33.402627, 1.808066, 0), Vector(33.219225, 1.753157, 0), Vector(33.025132, 1.72505, 0), Vector(32.821985, 1.716912, 0), Vector(32.609259, 1.731557, 0), Vector(32.386112, 1.765175, 0), Vector(32.237193, 1.806597, 0), Vector(32.160683, 1.827877, 0)], [4, 1, 1, 1, 1, 1, 1, 1, 1, 1, 1, 1, 1, 1, 1, 1, 4], [0, 1.227025702, 2.371470339, 3.429649678, 4.429654124, 5.381889622, 6.301745996, 7.205530584, 8.114459748, 9.024121477, 9.9255999, 10.840282126, 11.780196128, 12.748817052, 13.770322343, 14.854464549, 16], False, 3, [1, 1, 1, 1, 1, 1, 1, 1, 1, 1, 1, 1, 1, 1, 1, 1, 1, 1, 1], False),
    Part.LineSegment(Vector(34.364948, 3.477054, 0), Vector(34.364948, 9.574985, 0)),
    Part.LineSegment(Vector(34.364948, 9.574985, 0), Vector(31.619002, 11.280475, 0)),
    Part.LineSegment(Vector(31.619002, 11.280475, 0), Vector(31.619002, 5.793946, 0)),
    Part.BSplineCurve([Vector(25.612245, -3.132524, 0), Vector(25.61918, -3.215634, 0), Vector(25.63276, -3.378399, 0), Vector(25.718122, -3.571515, 0), Vector(25.834232, -3.703245, 0), Vector(25.964183, -3.788659, 0), Vector(26.126506, -3.870534, 0), Vector(26.25061, -3.910237, 0), Vector(26.317503, -3.931637, 0)], [4, 1, 1, 1, 1, 1, 4], [0, 1.287265703, 2.521006488, 3.188322154, 3.983954908, 4.91333547, 6], False, 3, [1, 1, 1, 1, 1, 1, 1, 1, 1], False),
    Part.LineSegment(Vector(25.612245, -3.132524, 0), Vector(25.612245, -2.022346, 0)),
    Part.LineSegment(Vector(25.612245, -2.022346, 0), Vector(31.321346, -3.690294, 0)),
    Part.LineSegment(Vector(31.321346, -3.690294, 0), Vector(31.321346, -0.57697, 0)),
    Part.LineSegment(Vector(31.321346, -0.57697, 0), Vector(11.882515, 5.097269, 0)),
    Part.LineSegment(Vector(11.882515, 5.097269, 0), Vector(11.882515, 1.981264, 0)),
    Part.LineSegment(Vector(11.882515, 1.981264, 0), Vector(23.209542, -1.317089, 0)),
    Part.LineSegment(Vector(23.209542, -1.317089, 0), Vector(23.209542, -2.244918, 0)),
    Part.BSplineCurve([Vector(22.643727, -2.652519, 0), Vector(22.685485, -2.662873, 0), Vector(22.762914, -2.682072, 0), Vector(22.875752, -2.688557, 0), Vector(22.975288, -2.6733, 0), Vector(23.060998, -2.635189, 0), Vector(23.132544, -2.574436, 0), Vector(23.17764, -2.48407, 0), Vector(23.207575, -2.372905, 0), Vector(23.208851, -2.289866, 0), Vector(23.209542, -2.244918, 0)], [4, 1, 1, 1, 1, 1, 1, 1, 4], [0, 1.198272128, 2.22190316, 3.132016759, 3.980240005, 4.810681926, 5.692336566, 6.750909741, 8], False, 3, [1, 1, 1, 1, 1, 1, 1, 1, 1, 1, 1], False),
    Part.LineSegment(Vector(22.643727, -2.652519, 0), Vector(15.261316, -0.501886, 0)),
    Part.LineSegment(Vector(15.261316, -0.501886, 0), Vector(15.314948, -3.61521, 0)),
    Part.LineSegment(Vector(15.314948, -3.61521, 0), Vector(22.061823, -5.599585, 0)),
    Part.BSplineCurve([Vector(24.13469, -4.894327, 0), Vector(24.129145, -4.947344, 0), Vector(24.118469, -5.049409, 0), Vector(24.077133, -5.192812, 0), Vector(24.02078, -5.320314, 0), Vector(23.948819, -5.433228, 0), Vector(23.854022, -5.524771, 0), Vector(23.747016, -5.604188, 0), Vector(23.620048, -5.663436, 0), Vector(23.426827, -5.719529, 0), Vector(23.159155, -5.754732, 0), Vector(22.815407, -5.755018, 0), Vector(22.444755, -5.700799, 0), Vector(22.193502, -5.634389, 0), Vector(22.061823, -5.599585, 0)], [4, 1, 1, 1, 1, 1, 1, 1, 1, 1, 1, 1, 4], [0, 0.748232156, 1.440439236, 2.087360142, 2.704291393, 3.308549052, 3.929435439, 4.570224255, 5.265958673, 6.751725874, 8.347722503, 10.085866424, 12], False, 3, [1, 1, 1, 1, 1, 1, 1, 1, 1, 1, 1, 1, 1, 1, 1], False),
    Part.BSplineCurve([Vector(25.236823, -6.452329, 0), Vector(25.167328, -6.427129, 0), Vector(25.028231, -6.376689, 0), Vector(24.828524, -6.270261, 0), Vector(24.643422, -6.132151, 0), Vector(24.464785, -5.972746, 0), Vector(24.311477, -5.770844, 0), Vector(24.209947, -5.516616, 0), Vector(24.144606, -5.220309, 0), Vector(24.138129, -5.007357, 0), Vector(24.13469, -4.894327, 0)], [4, 1, 1, 1, 1, 1, 1, 1, 4], [0, 0.858061207, 1.717440721, 2.616729748, 3.535235509, 4.492594278, 5.530155533, 6.689056816, 8], False, 3, [1, 1, 1, 1, 1, 1, 1, 1, 1, 1, 1], False),
    Part.LineSegment(Vector(25.236823, -6.452329, 0), Vector(32.179454, -8.54665, 0)),
    Part.BSplineCurve([Vector(34.364948, -6.988647, 0), Vector(34.3629, -7.073657, 0), Vector(34.358983, -7.23618, 0), Vector(34.329113, -7.469676, 0), Vector(34.281009, -7.682574, 0), Vector(34.216258, -7.876895, 0), Vector(34.125379, -8.048231, 0), Vector(34.018311, -8.199908, 0), Vector(33.89057, -8.331348, 0), Vector(33.742262, -8.437582, 0), Vector(33.580083, -8.523166, 0), Vector(33.408487, -8.590742, 0), Vector(33.226515, -8.636669, 0), Vector(33.03472, -8.660651, 0), Vector(32.833439, -8.662008, 0), Vector(32.622509, -8.64597, 0), Vector(32.402453, -8.608558, 0), Vector(32.255112, -8.567654, 0), Vector(32.179454, -8.54665, 0)], [4, 1, 1, 1, 1, 1, 1, 1, 1, 1, 1, 1, 1, 1, 1, 1, 4], [0, 1.251338017, 2.392345991, 3.458656697, 4.461694018, 5.397650846, 6.303325578, 7.187420856, 8.082419285, 8.977320952, 9.881560306, 10.791242046, 11.733101695, 12.720213325, 13.749750695, 14.844512033, 16], False, 3, [1, 1, 1, 1, 1, 1, 1, 1, 1, 1, 1, 1, 1, 1, 1, 1, 1, 1, 1], False),
    Part.LineSegment(Vector(34.364948, -6.988647, 0), Vector(34.364948, -0.928259, 0)),
    Part.LineSegment(Vector(34.364948, -0.928259, 0), Vector(31.619002, 0.777231, 0)),
    Part.LineSegment(Vector(31.619002, 0.777231, 0), Vector(31.619002, -4.800471, 0)),
    Part.BSplineCurve([Vector(30.894973, -5.301928, 0), Vector(30.950917, -5.316358, 0), Vector(31.054608, -5.343102, 0), Vector(31.204956, -5.3529, 0), Vector(31.334059, -5.332846, 0), Vector(31.441565, -5.284019, 0), Vector(31.525232, -5.203019, 0), Vector(31.579575, -5.091379, 0), Vector(31.615029, -4.954577, 0), Vector(31.617613, -4.854371, 0), Vector(31.619002, -4.800471, 0)], [4, 1, 1, 1, 1, 1, 1, 1, 4], [0, 1.269702279, 2.353385088, 3.291366245, 4.118613865, 4.911701318, 5.800525574, 6.816934998, 8], False, 3, [1, 1, 1, 1, 1, 1, 1, 1, 1, 1, 1], False),
    Part.LineSegment(Vector(30.894973, -5.301928, 0), Vector(26.317503, -3.931637, 0)),
], False)
sketch10.addConstraint([
    Sketcher.Constraint("Block", 0),
    Sketcher.Constraint("Block", 2),
    Sketcher.Constraint("Block", 4),
    Sketcher.Constraint("Block", 8),
    Sketcher.Constraint("Block", 10),
    Sketcher.Constraint("Block", 12),
    Sketcher.Constraint("Block", 16),
    Sketcher.Constraint("Block", 24),
    Sketcher.Constraint("Block", 28),
    Sketcher.Constraint("Block", 29),
    Sketcher.Constraint("Block", 31),
    Sketcher.Constraint("Block", 35),
    Sketcher.Constraint("Coincident", 0, 1, 1, 1),
    Sketcher.Constraint("Coincident", 1, 2, 2, 2),
    Sketcher.Constraint("Coincident", 2, 1, 3, 1),
    Sketcher.Constraint("Coincident", 3, 2, 4, 2),
    Sketcher.Constraint("Coincident", 4, 1, 5, 1),
    Sketcher.Constraint("Coincident", 5, 2, 6, 1),
    Sketcher.Constraint("Coincident", 6, 2, 7, 1),
    Sketcher.Constraint("Coincident", 7, 2, 8, 2),
    Sketcher.Constraint("Coincident", 8, 1, 9, 1),
    Sketcher.Constraint("Coincident", 9, 2, 10, 2),
    Sketcher.Constraint("Coincident", 10, 1, 11, 1),
    Sketcher.Constraint("Coincident", 11, 2, 12, 2),
    Sketcher.Constraint("Coincident", 12, 1, 13, 1),
    Sketcher.Constraint("Coincident", 13, 2, 14, 1),
    Sketcher.Constraint("Coincident", 14, 2, 15, 1),
    Sketcher.Constraint("Coincident", 15, 2, 0, 2),
    Sketcher.Constraint("Coincident", 16, 1, 17, 1),
    Sketcher.Constraint("Coincident", 17, 2, 18, 1),
    Sketcher.Constraint("Coincident", 18, 2, 19, 1),
    Sketcher.Constraint("Coincident", 19, 2, 20, 1),
    Sketcher.Constraint("Coincident", 20, 2, 21, 1),
    Sketcher.Constraint("Coincident", 21, 2, 22, 1),
    Sketcher.Constraint("Coincident", 22, 2, 23, 1),
    Sketcher.Constraint("Coincident", 23, 2, 24, 2),
    Sketcher.Constraint("Coincident", 24, 1, 25, 1),
    Sketcher.Constraint("Coincident", 25, 2, 26, 1),
    Sketcher.Constraint("Coincident", 26, 2, 27, 1),
    Sketcher.Constraint("Coincident", 27, 2, 28, 2),
    Sketcher.Constraint("Coincident", 29, 1, 30, 1),
    Sketcher.Constraint("Coincident", 30, 2, 31, 2),
    Sketcher.Constraint("Coincident", 31, 1, 32, 1),
    Sketcher.Constraint("Coincident", 32, 2, 33, 1),
    Sketcher.Constraint("Coincident", 33, 2, 34, 1),
    Sketcher.Constraint("Coincident", 34, 2, 35, 2),
    Sketcher.Constraint("Coincident", 35, 1, 36, 1),
    Sketcher.Constraint("Coincident", 36, 2, 16, 2),
    Sketcher.Constraint("Vertical", 6),
    Sketcher.Constraint("Vertical", 13),
    Sketcher.Constraint("Vertical", 15),
    Sketcher.Constraint("Vertical", 17),
    Sketcher.Constraint("Vertical", 19),
    Sketcher.Constraint("Vertical", 21),
    Sketcher.Constraint("Vertical", 23),
    Sketcher.Constraint("Vertical", 32),
    Sketcher.Constraint("Vertical", 34),
    Sketcher.Constraint("DistanceY", 13, 1, 13, 2, Q("6.097931 mm")),
    Sketcher.Constraint("DistanceY", 15, 2, 15, 1, Q("5.486529 mm")),
    Sketcher.Constraint("DistanceY", 23, 2, 23, 1, Q("0.927829 mm")),
    Sketcher.Constraint("DistanceY", 32, 1, 32, 2, Q("6.060389 mm")),
    Sketcher.Constraint("DistanceY", 6, 2, 14, 2, Q("1.354202 mm")),
    Sketcher.Constraint("DistanceX", 17, 2, 18, 2, Q("5.709101 mm")),
    Sketcher.Constraint("DistanceX", 20, 2, 1, 2, Q("6.655701 mm")),
    Sketcher.Constraint("DistanceX", 21, 2, 25, 2, Q("3.378801 mm")),
    Sketcher.Constraint("DistanceY", 27, 2, 25, 2, Q("5.097698 mm")),
    Sketcher.Constraint("DistanceY", 19, 2, 33, 2, Q("1.354202 mm")),
    Sketcher.Constraint("DistanceY", 34, 2, 19, 2, Q("4.223501 mm")),
    Sketcher.Constraint("Distance", 5, Q("13.24041 mm")),
    Sketcher.Constraint("DistanceY", 6, 1, 6, 2, Q("3.113323 mm")),
    Sketcher.Constraint("DistanceY", 17, 1, 17, 2, Q("1.110177 mm")),
    Sketcher.Constraint("DistanceY", 19, 1, 19, 2, Q("3.113323 mm")),
    Sketcher.Constraint("DistanceY", 21, 2, 21, 1, Q("3.116005 mm")),
    Sketcher.Constraint("DistanceY", -1, 1, 20, 2, Q("5.097269 mm")),
    Sketcher.Constraint("DistanceY", 26, 2, -1, 1, Q("3.61521 mm")),
    Sketcher.Constraint("DistanceX", 25, 2, 26, 2, Q("0.053632 mm")),
])
pocket7 = doc.addObject("PartDesign::Pocket", "Pocket006")
body.addObject(pocket7)
pocket7.Profile = sketch10
pocket7.setExpression("Length", "Params.pocket7_length")

doc.recompute()
